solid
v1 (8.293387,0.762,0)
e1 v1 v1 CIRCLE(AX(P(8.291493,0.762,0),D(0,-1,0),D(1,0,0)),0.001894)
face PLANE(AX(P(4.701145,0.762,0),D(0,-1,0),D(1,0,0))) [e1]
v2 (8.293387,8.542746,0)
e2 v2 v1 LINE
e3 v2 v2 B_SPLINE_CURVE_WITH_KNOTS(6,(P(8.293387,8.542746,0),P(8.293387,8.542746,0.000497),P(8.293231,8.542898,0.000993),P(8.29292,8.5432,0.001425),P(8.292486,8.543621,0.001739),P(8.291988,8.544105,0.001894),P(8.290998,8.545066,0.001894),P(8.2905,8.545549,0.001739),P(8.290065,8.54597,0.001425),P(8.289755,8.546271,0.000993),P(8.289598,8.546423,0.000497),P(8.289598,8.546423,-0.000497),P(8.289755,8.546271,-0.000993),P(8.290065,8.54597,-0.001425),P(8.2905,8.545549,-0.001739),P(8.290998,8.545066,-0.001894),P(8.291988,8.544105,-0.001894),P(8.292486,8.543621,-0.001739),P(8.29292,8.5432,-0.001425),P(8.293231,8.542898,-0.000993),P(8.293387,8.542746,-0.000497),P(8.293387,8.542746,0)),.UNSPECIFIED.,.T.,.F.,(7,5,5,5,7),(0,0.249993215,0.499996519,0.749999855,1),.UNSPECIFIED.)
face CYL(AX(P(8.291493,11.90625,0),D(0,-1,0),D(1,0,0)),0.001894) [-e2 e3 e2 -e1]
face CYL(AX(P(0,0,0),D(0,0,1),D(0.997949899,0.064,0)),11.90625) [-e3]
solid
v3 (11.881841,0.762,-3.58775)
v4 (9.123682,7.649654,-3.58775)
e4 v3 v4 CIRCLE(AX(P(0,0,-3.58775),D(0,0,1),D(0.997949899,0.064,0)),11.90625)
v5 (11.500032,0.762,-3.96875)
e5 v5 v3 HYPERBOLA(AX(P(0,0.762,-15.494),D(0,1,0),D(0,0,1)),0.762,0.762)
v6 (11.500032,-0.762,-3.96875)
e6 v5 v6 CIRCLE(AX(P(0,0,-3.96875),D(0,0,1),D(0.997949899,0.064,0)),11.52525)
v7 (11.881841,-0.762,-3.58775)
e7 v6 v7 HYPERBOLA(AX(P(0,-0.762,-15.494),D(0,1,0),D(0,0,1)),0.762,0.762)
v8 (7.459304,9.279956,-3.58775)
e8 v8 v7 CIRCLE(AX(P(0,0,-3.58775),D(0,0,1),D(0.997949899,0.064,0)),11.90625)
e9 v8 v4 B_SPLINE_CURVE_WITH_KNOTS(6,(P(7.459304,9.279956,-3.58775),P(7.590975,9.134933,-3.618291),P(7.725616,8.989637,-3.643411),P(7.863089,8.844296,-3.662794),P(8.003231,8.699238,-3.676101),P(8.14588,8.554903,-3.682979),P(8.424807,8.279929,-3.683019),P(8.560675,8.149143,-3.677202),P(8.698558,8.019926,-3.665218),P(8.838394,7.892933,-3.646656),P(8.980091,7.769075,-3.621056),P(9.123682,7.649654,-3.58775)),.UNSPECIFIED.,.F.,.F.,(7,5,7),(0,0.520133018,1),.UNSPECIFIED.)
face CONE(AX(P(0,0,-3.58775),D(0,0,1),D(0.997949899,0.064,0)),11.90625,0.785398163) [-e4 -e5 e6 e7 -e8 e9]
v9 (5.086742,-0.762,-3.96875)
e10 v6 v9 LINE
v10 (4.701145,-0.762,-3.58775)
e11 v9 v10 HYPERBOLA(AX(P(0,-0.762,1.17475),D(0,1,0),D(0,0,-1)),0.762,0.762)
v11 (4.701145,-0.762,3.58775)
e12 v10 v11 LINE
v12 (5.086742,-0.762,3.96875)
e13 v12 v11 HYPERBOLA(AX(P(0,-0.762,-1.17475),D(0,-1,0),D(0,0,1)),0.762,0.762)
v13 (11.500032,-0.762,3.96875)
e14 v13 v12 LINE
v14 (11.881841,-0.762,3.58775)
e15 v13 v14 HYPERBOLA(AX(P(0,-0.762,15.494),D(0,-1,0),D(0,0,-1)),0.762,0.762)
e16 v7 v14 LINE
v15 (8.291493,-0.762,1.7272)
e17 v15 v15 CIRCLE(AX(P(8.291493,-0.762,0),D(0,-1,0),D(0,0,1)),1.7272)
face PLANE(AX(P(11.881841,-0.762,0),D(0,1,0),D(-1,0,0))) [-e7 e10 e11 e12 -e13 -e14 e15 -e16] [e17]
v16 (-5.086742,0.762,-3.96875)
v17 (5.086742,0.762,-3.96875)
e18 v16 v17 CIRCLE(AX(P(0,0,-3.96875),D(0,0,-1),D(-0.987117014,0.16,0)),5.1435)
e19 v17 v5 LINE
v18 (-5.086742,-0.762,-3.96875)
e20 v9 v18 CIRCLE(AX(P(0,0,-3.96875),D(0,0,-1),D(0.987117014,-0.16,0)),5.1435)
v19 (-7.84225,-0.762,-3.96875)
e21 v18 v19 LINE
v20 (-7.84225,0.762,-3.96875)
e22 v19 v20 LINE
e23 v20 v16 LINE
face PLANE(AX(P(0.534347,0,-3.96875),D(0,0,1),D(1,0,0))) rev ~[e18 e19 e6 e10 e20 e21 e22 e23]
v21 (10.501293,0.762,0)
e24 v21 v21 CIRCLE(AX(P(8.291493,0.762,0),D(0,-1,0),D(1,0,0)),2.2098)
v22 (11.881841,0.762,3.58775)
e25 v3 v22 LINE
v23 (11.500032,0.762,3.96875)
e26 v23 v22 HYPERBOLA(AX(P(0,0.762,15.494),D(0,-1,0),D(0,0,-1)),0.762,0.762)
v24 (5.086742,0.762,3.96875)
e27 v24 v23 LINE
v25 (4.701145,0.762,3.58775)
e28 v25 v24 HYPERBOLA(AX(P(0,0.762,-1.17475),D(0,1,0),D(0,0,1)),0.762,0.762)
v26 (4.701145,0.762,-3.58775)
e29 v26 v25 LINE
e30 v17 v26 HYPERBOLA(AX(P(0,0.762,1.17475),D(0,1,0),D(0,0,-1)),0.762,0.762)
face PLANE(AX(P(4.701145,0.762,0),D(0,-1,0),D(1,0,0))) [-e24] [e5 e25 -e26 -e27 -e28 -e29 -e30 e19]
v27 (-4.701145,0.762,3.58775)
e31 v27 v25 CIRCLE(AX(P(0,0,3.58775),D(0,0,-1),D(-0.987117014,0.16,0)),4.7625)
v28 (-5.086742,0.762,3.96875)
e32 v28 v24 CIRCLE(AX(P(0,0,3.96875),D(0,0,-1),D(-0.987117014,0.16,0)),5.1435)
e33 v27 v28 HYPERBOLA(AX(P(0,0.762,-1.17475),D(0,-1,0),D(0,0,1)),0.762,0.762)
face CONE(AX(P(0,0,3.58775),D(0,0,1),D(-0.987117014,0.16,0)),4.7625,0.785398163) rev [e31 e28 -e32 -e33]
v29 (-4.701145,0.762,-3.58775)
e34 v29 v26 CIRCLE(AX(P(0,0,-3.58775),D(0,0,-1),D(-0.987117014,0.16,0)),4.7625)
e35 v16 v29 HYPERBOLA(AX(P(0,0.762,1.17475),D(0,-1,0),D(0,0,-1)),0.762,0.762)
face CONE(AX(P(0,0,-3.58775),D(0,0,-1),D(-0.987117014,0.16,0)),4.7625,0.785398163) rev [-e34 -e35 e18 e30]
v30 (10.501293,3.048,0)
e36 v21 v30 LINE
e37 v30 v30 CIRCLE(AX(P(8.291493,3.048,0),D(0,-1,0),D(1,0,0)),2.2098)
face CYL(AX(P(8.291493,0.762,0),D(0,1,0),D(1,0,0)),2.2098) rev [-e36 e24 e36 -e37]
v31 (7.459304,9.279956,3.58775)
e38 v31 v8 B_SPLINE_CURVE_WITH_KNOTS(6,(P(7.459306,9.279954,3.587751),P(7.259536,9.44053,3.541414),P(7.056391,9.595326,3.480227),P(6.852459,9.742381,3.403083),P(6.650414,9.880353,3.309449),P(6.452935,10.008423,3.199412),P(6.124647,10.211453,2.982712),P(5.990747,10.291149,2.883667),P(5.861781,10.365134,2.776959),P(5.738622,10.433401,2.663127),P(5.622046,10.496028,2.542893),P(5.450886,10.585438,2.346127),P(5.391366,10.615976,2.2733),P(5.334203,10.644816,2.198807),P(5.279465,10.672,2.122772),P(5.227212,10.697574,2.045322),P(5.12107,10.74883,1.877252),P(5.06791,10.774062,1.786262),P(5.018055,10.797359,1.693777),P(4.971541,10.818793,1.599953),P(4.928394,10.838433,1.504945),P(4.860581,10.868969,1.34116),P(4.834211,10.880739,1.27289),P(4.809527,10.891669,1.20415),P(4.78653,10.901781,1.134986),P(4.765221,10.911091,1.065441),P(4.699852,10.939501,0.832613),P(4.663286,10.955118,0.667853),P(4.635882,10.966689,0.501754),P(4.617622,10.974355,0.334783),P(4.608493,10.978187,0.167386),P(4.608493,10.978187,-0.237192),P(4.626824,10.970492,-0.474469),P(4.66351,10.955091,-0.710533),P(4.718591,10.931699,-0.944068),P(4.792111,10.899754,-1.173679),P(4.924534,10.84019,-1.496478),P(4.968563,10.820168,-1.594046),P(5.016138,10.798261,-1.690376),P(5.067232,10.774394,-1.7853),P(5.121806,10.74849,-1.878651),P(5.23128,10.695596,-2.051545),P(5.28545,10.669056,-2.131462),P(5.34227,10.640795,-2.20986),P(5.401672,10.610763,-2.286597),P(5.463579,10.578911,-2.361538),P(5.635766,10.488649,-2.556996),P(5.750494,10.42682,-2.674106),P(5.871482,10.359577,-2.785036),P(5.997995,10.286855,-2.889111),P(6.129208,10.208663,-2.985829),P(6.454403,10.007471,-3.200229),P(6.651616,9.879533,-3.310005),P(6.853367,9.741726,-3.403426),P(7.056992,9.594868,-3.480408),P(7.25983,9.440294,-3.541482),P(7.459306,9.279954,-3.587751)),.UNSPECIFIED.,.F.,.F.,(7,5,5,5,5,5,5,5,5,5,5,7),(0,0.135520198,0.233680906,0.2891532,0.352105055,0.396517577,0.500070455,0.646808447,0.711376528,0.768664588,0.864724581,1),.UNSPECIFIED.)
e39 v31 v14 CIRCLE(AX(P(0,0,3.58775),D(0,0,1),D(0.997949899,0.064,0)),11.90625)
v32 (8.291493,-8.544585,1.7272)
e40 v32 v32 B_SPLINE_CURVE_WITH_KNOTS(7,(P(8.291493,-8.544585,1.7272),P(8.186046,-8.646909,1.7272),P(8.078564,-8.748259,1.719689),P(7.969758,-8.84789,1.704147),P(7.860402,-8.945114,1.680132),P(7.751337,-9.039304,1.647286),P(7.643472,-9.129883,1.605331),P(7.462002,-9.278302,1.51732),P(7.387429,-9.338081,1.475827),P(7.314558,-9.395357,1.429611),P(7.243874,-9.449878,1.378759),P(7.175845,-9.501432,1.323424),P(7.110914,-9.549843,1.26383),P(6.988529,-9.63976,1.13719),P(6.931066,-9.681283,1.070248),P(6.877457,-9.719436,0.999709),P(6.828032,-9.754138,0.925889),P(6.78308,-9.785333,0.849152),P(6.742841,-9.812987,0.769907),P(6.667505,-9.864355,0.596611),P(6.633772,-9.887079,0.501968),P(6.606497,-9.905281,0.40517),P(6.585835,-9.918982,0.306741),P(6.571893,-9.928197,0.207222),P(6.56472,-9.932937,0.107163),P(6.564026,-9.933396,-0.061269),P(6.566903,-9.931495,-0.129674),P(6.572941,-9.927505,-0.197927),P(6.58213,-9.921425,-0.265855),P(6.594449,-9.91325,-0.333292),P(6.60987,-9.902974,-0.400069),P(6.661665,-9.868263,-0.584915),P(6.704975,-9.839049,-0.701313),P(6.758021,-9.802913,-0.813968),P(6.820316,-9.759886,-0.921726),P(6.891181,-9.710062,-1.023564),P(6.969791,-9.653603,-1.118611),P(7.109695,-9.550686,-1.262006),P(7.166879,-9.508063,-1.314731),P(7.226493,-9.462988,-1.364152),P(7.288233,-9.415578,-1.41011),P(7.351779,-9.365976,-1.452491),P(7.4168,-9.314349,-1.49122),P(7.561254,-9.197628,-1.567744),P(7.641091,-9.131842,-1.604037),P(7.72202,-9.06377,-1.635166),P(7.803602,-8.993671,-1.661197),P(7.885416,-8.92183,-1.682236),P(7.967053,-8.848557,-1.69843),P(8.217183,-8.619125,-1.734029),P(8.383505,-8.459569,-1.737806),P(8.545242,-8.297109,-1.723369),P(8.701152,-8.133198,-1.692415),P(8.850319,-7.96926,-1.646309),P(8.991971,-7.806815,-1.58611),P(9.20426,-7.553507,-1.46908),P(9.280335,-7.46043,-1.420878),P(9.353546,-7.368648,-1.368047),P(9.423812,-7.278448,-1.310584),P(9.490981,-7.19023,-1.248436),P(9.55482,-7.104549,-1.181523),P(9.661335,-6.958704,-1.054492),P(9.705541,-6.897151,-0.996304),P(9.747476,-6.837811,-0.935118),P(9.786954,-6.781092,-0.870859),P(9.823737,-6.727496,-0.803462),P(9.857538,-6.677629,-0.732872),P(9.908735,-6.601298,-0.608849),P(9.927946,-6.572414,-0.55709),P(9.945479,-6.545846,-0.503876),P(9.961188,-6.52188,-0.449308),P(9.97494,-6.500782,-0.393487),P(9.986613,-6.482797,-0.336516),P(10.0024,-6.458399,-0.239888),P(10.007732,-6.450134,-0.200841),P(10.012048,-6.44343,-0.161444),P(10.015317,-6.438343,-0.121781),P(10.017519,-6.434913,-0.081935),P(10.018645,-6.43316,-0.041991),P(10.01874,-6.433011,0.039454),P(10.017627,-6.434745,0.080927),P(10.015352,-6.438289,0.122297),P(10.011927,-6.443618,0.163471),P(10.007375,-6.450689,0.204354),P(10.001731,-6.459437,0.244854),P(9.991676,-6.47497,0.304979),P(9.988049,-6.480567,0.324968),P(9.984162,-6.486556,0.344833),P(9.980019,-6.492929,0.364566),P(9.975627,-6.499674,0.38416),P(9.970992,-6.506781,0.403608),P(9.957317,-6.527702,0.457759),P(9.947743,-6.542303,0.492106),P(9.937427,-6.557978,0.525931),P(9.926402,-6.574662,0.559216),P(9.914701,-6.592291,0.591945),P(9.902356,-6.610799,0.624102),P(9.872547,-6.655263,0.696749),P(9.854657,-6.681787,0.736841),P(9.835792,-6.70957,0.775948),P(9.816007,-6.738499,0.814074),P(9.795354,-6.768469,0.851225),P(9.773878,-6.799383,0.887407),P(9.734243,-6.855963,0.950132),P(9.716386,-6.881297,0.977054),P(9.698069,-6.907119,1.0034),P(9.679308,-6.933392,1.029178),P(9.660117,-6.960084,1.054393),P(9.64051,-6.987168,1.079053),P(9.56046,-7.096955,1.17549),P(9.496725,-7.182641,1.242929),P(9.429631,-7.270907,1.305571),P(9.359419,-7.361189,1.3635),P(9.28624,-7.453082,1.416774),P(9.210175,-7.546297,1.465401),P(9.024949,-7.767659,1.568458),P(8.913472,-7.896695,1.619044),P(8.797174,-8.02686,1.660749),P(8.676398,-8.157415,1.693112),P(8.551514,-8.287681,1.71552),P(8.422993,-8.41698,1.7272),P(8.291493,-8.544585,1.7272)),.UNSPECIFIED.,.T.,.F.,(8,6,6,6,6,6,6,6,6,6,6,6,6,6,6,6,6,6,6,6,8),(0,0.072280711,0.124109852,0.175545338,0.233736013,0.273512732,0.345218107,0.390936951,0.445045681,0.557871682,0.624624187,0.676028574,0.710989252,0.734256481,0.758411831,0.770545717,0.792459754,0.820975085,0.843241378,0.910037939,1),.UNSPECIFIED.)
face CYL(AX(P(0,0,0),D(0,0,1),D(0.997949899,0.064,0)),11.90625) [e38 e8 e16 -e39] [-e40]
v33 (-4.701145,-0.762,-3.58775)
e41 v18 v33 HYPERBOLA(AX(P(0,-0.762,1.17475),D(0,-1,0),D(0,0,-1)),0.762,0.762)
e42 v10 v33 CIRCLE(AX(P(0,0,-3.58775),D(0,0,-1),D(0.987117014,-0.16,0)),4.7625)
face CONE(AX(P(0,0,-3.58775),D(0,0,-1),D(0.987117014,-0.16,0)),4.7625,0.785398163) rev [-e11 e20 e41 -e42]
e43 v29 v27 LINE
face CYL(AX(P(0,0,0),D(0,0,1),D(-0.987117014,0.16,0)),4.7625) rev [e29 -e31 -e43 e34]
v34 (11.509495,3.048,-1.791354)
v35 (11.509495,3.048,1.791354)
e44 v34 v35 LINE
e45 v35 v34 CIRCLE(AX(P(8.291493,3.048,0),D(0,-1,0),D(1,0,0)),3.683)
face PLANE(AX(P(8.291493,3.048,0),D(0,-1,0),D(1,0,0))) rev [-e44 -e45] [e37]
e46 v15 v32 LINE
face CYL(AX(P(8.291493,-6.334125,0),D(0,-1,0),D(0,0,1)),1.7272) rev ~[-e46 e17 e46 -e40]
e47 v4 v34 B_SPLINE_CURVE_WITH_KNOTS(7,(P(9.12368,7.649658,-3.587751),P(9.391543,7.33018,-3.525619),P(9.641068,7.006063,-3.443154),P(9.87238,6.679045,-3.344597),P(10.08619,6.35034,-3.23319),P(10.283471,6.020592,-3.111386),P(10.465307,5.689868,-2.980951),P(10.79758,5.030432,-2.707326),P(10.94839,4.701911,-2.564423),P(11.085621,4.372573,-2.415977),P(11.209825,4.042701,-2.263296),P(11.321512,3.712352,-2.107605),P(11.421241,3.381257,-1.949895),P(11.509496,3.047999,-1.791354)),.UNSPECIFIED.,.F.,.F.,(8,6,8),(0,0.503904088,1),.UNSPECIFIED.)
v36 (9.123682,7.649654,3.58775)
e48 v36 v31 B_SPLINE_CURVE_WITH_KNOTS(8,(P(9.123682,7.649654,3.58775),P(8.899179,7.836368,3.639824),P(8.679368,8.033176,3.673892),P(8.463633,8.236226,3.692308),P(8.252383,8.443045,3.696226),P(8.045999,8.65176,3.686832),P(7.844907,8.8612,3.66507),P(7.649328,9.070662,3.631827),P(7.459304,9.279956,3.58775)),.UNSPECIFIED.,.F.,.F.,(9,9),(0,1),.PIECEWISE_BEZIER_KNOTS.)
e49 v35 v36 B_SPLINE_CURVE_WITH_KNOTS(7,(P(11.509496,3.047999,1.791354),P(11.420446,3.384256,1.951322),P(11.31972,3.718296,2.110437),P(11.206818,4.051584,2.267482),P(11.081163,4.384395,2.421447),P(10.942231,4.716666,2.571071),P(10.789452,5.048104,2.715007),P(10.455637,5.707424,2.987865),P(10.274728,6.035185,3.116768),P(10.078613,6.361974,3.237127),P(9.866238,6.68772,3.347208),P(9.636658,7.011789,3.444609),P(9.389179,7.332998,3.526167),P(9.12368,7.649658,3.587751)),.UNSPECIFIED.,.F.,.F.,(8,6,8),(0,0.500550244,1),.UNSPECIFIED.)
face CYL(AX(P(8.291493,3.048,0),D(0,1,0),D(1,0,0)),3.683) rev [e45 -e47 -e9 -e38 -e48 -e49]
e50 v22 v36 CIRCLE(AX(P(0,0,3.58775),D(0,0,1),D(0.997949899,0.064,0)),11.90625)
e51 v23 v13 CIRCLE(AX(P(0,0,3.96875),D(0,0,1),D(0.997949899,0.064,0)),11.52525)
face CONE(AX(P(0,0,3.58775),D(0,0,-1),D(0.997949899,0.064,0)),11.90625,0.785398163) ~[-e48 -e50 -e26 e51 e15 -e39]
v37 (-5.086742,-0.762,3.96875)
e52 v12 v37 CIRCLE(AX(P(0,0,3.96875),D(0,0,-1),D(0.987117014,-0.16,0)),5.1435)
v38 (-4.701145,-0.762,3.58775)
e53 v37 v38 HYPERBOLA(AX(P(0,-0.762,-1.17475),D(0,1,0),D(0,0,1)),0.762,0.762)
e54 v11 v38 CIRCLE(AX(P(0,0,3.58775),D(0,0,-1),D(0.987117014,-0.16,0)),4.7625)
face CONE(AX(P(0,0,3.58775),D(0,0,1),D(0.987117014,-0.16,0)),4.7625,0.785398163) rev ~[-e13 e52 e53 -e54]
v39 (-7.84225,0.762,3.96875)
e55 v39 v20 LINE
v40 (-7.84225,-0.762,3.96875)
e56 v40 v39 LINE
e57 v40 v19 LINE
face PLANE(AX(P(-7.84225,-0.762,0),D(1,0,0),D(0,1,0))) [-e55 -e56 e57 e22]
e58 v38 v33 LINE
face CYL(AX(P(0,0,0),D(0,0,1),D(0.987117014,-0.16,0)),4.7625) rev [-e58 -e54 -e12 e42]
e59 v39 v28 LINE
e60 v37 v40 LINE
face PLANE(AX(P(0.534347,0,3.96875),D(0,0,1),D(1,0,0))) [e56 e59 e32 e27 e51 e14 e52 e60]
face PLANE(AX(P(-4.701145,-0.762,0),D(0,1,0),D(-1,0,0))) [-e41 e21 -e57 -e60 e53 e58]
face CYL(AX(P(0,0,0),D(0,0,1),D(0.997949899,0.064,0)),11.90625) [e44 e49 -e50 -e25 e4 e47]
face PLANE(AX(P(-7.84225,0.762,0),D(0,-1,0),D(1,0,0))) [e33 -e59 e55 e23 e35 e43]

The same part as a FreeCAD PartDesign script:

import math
import FreeCAD as App
import Part
import Sketcher
from FreeCAD import Vector
Q = App.Units.Quantity


def edges_at(feature, points):
    """Names of the edges that pass closest to the given points."""
    edges = feature.Shape.Edges
    near = lambda p: min(range(len(edges)), key=lambda i: edges[i].distToShape(Part.Vertex(*p))[0])
    return sorted({f"Edge{near(p) + 1}" for p in points})

doc = App.newDocument("Part")
params = doc.addObject("Spreadsheet::Sheet", "Params")
for row, (alias, value) in enumerate([
    ("sketch1_radius", "0.1875 in"),
    ("sketch1_radius2", "0.46875 in"),
    ("sketch1_height", "0.06 in"),
    ("pad1_length", "0.3125 in"),
    ("sketch2_height", "0.068 in"),
    ("groove_angle", "360 deg"),
    ("chamfer_size", "0.015 in"),
    ("sketch3_height", "0.09 in"),
    ("sketch3_width", "0.058 in"),
    ("groove2_angle", "360 deg"),
], start=1):
    params.set(f"A{row}", alias)
    params.set(f"B{row}", "=" + value)
    params.setAlias(f"B{row}", alias)

body = doc.addObject("PartDesign::Body", "Body")
body.AllowCompound = True

# Sketch on XY plane
sketch1 = body.newObject("Sketcher::SketchObject", "Sketch")
sketch1.AttachmentSupport = (doc.getObject("XY_Plane"), [""])
sketch1.MapMode = "FlatFace"
sketch1.addGeometry(Part.LineSegment(Vector(-7.8, 0.8, 0), Vector(-4.7, 0.8, 0)), False)
sketch1.addGeometry(Part.ArcOfCircle(Part.Circle(Vector(0, 0, 0), Vector(0, 0, 1), 4.8), math.radians(9), math.radians(171)), False)
sketch1.addGeometry(Part.LineSegment(Vector(4.7, 0.8, 0), Vector(11.9, 0.8, 0)), False)
sketch1.addGeometry(Part.ArcOfCircle(Part.Circle(Vector(0, 0, 0), Vector(0, 0, 1), 11.9), math.radians(4), math.radians(356)), False)
sketch1.addGeometry(Part.LineSegment(Vector(11.9, -0.8, 0), Vector(4.7, -0.8, 0)), False)
sketch1.addGeometry(Part.ArcOfCircle(Part.Circle(Vector(0, 0, 0), Vector(0, 0, 1), 4.8), math.radians(-171), math.radians(-9)), False)
sketch1.addGeometry(Part.LineSegment(Vector(-4.7, -0.8, 0), Vector(-7.8, -0.8, 0)), False)
sketch1.addGeometry(Part.LineSegment(Vector(-7.8, -0.8, 0), Vector(-7.8, 0.8, 0)), False)
sketch1.addConstraint(Sketcher.Constraint("Coincident", 0, 2, 1, 2))
sketch1.addConstraint(Sketcher.Constraint("Coincident", 1, 1, 2, 1))
sketch1.addConstraint(Sketcher.Constraint("Coincident", 2, 2, 3, 1))
sketch1.addConstraint(Sketcher.Constraint("Coincident", 3, 2, 4, 1))
sketch1.addConstraint(Sketcher.Constraint("Coincident", 4, 2, 5, 2))
sketch1.addConstraint(Sketcher.Constraint("Coincident", 5, 1, 6, 1))
sketch1.addConstraint(Sketcher.Constraint("Coincident", 6, 2, 7, 1))
sketch1.addConstraint(Sketcher.Constraint("Coincident", 7, 2, 0, 1))
sketch1.addConstraint(Sketcher.Constraint("Horizontal", 0))
sketch1.addConstraint(Sketcher.Constraint("Horizontal", 2))
sketch1.addConstraint(Sketcher.Constraint("Horizontal", 4))
sketch1.addConstraint(Sketcher.Constraint("Horizontal", 6))
sketch1.addConstraint(Sketcher.Constraint("Vertical", 7))
sketch1.addConstraint(Sketcher.Constraint("Coincident", 1, 3, -1, 1))
sketch1.addConstraint(Sketcher.Constraint("Coincident", 3, 3, -1, 1))
sketch1.addConstraint(Sketcher.Constraint("Coincident", 5, 3, -1, 1))
sketch1.addConstraint(Sketcher.Constraint("Equal", 1, 5))
sketch1.addConstraint(Sketcher.Constraint("Horizontal", 0, 2, 1, 1))
sketch1.addConstraint(Sketcher.Constraint("Horizontal", 4, 2, 5, 1))
sketch1.addConstraint(Sketcher.Constraint("Vertical", 2, 2, 3, 2))
sketch1.addConstraint(Sketcher.Constraint("Radius", 1, Q("0.1875 in")))
sketch1.addConstraint(Sketcher.Constraint("Radius", 3, Q("0.46875 in")))
sketch1.addConstraint(Sketcher.Constraint("DistanceY", 7, 1, 7, 2, Q("0.06 in")))
sketch1.addConstraint(Sketcher.Constraint("DistanceX", 0, 1, 0, 2, Q("3.141105 mm")))
sketch1.setExpression("Constraints[20]", "Params.sketch1_radius")
sketch1.setExpression("Constraints[21]", "Params.sketch1_radius2")
sketch1.setExpression("Constraints[22]", "Params.sketch1_height")
pad1 = body.newObject("PartDesign::Pad", "Pad")
pad1.Profile = sketch1
pad1.setExpression("Length", "Params.pad1_length")
pad1.Midplane = True

# Sketch on YZ plane
sketch2 = body.newObject("Sketcher::SketchObject", "Sketch001")
sketch2.AttachmentSupport = (doc.getObject("YZ_Plane"), [""])
sketch2.MapMode = "FlatFace"
sketch2.AttachmentOffset = App.Placement(Vector(0, 0, 8.291493), App.Rotation())
sketch2.addGeometry(Part.LineSegment(Vector(-11.9, 0, 0), Vector(-0.8, 0, 0)), False)
sketch2.addGeometry(Part.LineSegment(Vector(-0.8, 0, 0), Vector(-0.8, 1.7, 0)), False)
sketch2.addGeometry(Part.LineSegment(Vector(-0.8, 1.7, 0), Vector(-11.9, 1.7, 0)), False)
sketch2.addGeometry(Part.LineSegment(Vector(-11.9, 1.7, 0), Vector(-11.9, 0, 0)), False)
sketch2.addConstraint(Sketcher.Constraint("Coincident", 0, 2, 1, 1))
sketch2.addConstraint(Sketcher.Constraint("Coincident", 1, 2, 2, 1))
sketch2.addConstraint(Sketcher.Constraint("Coincident", 2, 2, 3, 1))
sketch2.addConstraint(Sketcher.Constraint("Coincident", 3, 2, 0, 1))
sketch2.addConstraint(Sketcher.Constraint("Horizontal", 0))
sketch2.addConstraint(Sketcher.Constraint("Vertical", 1))
sketch2.addConstraint(Sketcher.Constraint("Horizontal", 2))
sketch2.addConstraint(Sketcher.Constraint("Vertical", 3))
sketch2.addConstraint(Sketcher.Constraint("PointOnObject", 0, 2, -1))
sketch2.addConstraint(Sketcher.Constraint("DistanceY", 1, 1, 1, 2, Q("0.068 in")))
sketch2.addConstraint(Sketcher.Constraint("DistanceX", 0, 2, -1, 1, Q("0.03 in")))
sketch2.addConstraint(Sketcher.Constraint("DistanceX", 2, 2, -1, 1, Q("0.46875 in")))
sketch2.setExpression("Constraints[9]", "Params.sketch2_height")
groove = body.newObject("PartDesign::Groove", "Groove")
groove.Profile = sketch2
groove.ReferenceAxis = (sketch2, ["H_Axis"])
groove.setExpression("Angle", "Params.groove_angle")
doc.recompute()

chamfer = body.newObject("PartDesign::Chamfer", "Chamfer")
chamfer.Base = (groove, edges_at(groove, [
    (0, -4.763, -3.969),
    (0, 4.763, 3.969),
    (-11.906, 0, 3.969),
    (0, -4.763, 3.969),
    (-11.906, 0, -3.969),
    (0, 4.763, -3.969),
]))
chamfer.setExpression("Size", "Params.chamfer_size")

# Sketch on XY plane
sketch3 = body.newObject("Sketcher::SketchObject", "Sketch002")
sketch3.AttachmentSupport = (doc.getObject("XY_Plane"), [""])
sketch3.MapMode = "FlatFace"
sketch3.addGeometry(Part.LineSegment(Vector(8.3, 0.8, 0), Vector(10.5, 0.8, 0)), False)
sketch3.addGeometry(Part.LineSegment(Vector(10.5, 0.8, 0), Vector(10.5, 3, 0)), False)
sketch3.addGeometry(Part.LineSegment(Vector(10.5, 3, 0), Vector(12, 3, 0)), False)
sketch3.addGeometry(Part.LineSegment(Vector(12, 3, 0), Vector(12, 11.9, 0)), False)
sketch3.addGeometry(Part.LineSegment(Vector(12, 11.9, 0), Vector(8.3, 11.9, 0)), False)
sketch3.addGeometry(Part.LineSegment(Vector(8.3, 11.9, 0), Vector(8.3, 0.8, 0)), False)
sketch3.addGeometry(Part.LineSegment(Vector(8.3, 11.9, 0), Vector(8.3, 0.8, 0)), True)  # axis
sketch3.addConstraint(Sketcher.Constraint("Coincident", 0, 2, 1, 1))
sketch3.addConstraint(Sketcher.Constraint("Coincident", 1, 2, 2, 1))
sketch3.addConstraint(Sketcher.Constraint("Coincident", 2, 2, 3, 1))
sketch3.addConstraint(Sketcher.Constraint("Coincident", 3, 2, 4, 1))
sketch3.addConstraint(Sketcher.Constraint("Coincident", 4, 2, 5, 1))
sketch3.addConstraint(Sketcher.Constraint("Coincident", 5, 2, 0, 1))
sketch3.addConstraint(Sketcher.Constraint("Horizontal", 0))
sketch3.addConstraint(Sketcher.Constraint("Vertical", 1))
sketch3.addConstraint(Sketcher.Constraint("Horizontal", 2))
sketch3.addConstraint(Sketcher.Constraint("Vertical", 3))
sketch3.addConstraint(Sketcher.Constraint("Horizontal", 4))
sketch3.addConstraint(Sketcher.Constraint("Vertical", 5))
sketch3.addConstraint(Sketcher.Constraint("Vertical", 6))
sketch3.addConstraint(Sketcher.Constraint("Horizontal", 4, 2, 6, 1))
sketch3.addConstraint(Sketcher.Constraint("Horizontal", 5, 2, 6, 2))
sketch3.addConstraint(Sketcher.Constraint("DistanceY", 1, 1, 1, 2, Q("0.09 in")))
sketch3.addConstraint(Sketcher.Constraint("DistanceX", 2, 1, 2, 2, Q("0.058 in")))
sketch3.addConstraint(Sketcher.Constraint("DistanceY", -1, 1, 0, 2, Q("0.03 in")))
sketch3.addConstraint(Sketcher.Constraint("DistanceY", -1, 1, 3, 2, Q("0.46875 in")))
sketch3.addConstraint(Sketcher.Constraint("DistanceX", 6, 1, 3, 2, Q("0.145 in")))
sketch3.addConstraint(Sketcher.Constraint("DistanceX", 0, 1, 0, 2, Q("2.207906 mm")))
sketch3.addConstraint(Sketcher.Constraint("DistanceX", -1, 1, 0, 2, Q("10.501293 mm")))
sketch3.setExpression("Constraints[15]", "Params.sketch3_height")
sketch3.setExpression("Constraints[16]", "Params.sketch3_width")
groove2 = body.newObject("PartDesign::Groove", "Groove001")
groove2.Profile = sketch3
groove2.ReferenceAxis = (sketch3, ["Axis0"])
groove2.setExpression("Angle", "Params.groove2_angle")

doc.recompute()
